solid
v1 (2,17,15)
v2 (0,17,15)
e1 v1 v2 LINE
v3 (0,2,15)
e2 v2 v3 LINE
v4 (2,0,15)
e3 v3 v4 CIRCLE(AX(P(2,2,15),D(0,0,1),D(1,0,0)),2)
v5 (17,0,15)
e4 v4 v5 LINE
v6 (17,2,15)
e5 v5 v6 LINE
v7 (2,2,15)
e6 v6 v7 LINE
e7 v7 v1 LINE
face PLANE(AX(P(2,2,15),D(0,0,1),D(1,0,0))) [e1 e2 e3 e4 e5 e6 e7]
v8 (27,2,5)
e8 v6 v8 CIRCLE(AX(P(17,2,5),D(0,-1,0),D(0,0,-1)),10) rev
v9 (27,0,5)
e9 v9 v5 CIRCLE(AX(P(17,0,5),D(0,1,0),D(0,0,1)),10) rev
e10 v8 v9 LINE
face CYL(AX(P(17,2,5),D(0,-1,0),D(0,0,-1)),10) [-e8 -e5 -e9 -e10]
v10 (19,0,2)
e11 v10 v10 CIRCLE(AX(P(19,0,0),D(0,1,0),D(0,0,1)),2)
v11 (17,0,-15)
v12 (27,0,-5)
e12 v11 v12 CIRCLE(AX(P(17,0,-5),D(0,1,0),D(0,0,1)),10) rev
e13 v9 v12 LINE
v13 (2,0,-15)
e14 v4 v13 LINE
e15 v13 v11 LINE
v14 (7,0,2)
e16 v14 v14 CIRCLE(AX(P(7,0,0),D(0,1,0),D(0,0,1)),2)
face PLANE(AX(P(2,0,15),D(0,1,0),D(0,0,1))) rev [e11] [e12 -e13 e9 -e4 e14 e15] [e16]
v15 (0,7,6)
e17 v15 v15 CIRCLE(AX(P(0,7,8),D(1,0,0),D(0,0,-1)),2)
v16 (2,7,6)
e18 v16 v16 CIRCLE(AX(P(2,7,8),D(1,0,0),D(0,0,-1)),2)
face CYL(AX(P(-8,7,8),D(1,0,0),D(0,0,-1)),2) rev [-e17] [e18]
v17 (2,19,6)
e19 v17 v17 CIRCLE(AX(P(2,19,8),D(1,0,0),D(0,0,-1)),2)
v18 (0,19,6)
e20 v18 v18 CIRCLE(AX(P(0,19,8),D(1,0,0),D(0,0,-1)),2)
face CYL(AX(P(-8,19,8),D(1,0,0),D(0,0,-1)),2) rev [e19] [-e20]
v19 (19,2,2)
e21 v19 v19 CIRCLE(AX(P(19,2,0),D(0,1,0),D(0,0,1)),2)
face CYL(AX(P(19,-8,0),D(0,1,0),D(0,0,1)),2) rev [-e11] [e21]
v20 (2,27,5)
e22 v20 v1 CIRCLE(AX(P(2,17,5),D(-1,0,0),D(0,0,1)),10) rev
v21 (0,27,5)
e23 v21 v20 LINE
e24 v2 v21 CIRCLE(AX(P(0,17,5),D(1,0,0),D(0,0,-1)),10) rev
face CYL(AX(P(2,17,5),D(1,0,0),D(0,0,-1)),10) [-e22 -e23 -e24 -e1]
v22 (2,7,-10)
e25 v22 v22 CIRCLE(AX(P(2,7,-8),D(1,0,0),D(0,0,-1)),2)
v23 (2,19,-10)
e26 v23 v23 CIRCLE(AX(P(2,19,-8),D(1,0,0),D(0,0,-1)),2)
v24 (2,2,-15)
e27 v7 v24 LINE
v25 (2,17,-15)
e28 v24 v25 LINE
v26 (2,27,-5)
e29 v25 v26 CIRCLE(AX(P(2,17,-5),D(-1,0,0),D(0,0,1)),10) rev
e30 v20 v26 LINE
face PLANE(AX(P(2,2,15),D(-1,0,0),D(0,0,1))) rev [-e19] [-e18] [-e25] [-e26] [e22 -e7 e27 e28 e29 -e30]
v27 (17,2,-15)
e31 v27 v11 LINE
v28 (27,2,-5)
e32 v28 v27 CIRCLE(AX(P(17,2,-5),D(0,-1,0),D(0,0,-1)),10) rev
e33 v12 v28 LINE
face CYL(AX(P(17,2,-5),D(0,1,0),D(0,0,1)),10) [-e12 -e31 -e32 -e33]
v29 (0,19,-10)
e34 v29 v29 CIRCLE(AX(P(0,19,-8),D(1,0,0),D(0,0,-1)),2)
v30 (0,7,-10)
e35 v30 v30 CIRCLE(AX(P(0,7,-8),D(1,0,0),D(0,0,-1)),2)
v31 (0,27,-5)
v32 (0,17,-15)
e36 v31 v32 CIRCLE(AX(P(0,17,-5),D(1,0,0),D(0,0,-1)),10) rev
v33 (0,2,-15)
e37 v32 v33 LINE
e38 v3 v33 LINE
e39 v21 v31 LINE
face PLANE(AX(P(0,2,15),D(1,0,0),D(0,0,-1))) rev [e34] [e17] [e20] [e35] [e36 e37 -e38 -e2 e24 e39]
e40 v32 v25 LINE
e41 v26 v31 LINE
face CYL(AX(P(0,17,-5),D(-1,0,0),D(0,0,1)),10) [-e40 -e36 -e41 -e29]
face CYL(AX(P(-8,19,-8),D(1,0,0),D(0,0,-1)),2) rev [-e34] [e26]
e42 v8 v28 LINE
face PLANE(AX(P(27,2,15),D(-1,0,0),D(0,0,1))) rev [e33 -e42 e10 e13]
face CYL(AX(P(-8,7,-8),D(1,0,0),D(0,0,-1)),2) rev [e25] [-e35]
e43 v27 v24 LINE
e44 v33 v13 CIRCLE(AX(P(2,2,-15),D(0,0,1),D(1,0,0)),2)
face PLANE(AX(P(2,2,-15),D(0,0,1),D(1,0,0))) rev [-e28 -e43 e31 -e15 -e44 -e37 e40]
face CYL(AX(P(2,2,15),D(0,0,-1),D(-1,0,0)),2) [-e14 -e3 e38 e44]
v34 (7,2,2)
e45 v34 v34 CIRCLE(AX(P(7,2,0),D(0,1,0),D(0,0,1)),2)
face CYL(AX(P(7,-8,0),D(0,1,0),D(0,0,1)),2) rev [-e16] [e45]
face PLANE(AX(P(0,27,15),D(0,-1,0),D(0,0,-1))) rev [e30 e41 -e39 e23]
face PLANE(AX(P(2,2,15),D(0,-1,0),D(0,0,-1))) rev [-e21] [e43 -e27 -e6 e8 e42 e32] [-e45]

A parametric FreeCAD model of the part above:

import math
import FreeCAD as App
import Part
import Sketcher
from FreeCAD import Vector
Q = App.Units.Quantity


def edges_at(feature, points):
    """Names of the edges that pass closest to the given points."""
    edges = feature.Shape.Edges
    near = lambda p: min(range(len(edges)), key=lambda i: edges[i].distToShape(Part.Vertex(*p))[0])
    return sorted({f"Edge{near(p) + 1}" for p in points})

doc = App.newDocument("Part")
body = doc.addObject("PartDesign::Body", "Body")

# Sketch on XY plane
sketch1 = body.newObject("Sketcher::SketchObject", "Sketch")
sketch1.AttachmentSupport = (doc.getObject("XY_Plane"), [""])
sketch1.MapMode = "FlatFace"
sketch1.addGeometry([
    Part.LineSegment(Vector(0, 27, 0), Vector(0, 2, 0)),  # 0
    Part.ArcOfCircle(Part.Circle(Vector(2, 2, 0), Vector(0, 0, 1), 2), math.radians(-180), math.radians(-90)),  # 1
    Part.LineSegment(Vector(2, 0, 0), Vector(27, 0, 0)),  # 2
    Part.LineSegment(Vector(27, 0, 0), Vector(27, 2, 0)),  # 3
    Part.LineSegment(Vector(27, 2, 0), Vector(2, 2, 0)),  # 4
    Part.LineSegment(Vector(2, 2, 0), Vector(2, 27, 0)),  # 5
    Part.LineSegment(Vector(2, 27, 0), Vector(0, 27, 0)),  # 6
], False)
sketch1.addConstraint([
    Sketcher.Constraint("Tangent", 0, 2, 1, 1),
    Sketcher.Constraint("Tangent", 1, 2, 2, 1),
    Sketcher.Constraint("Coincident", 2, 2, 3, 1),
    Sketcher.Constraint("Coincident", 3, 2, 4, 1),
    Sketcher.Constraint("Coincident", 4, 2, 5, 1),
    Sketcher.Constraint("Coincident", 5, 2, 6, 1),
    Sketcher.Constraint("Coincident", 6, 2, 0, 1),
    Sketcher.Constraint("Vertical", 0),
    Sketcher.Constraint("Horizontal", 2),
    Sketcher.Constraint("Vertical", 3),
    Sketcher.Constraint("Horizontal", 4),
    Sketcher.Constraint("Vertical", 5),
    Sketcher.Constraint("Horizontal", 6),
    Sketcher.Constraint("Coincident", 4, 2, 1, 3),
    Sketcher.Constraint("PointOnObject", 0, 2, -2),
    Sketcher.Constraint("PointOnObject", 1, 2, -1),
    Sketcher.Constraint("Equal", 4, 0),
    Sketcher.Constraint("Radius", 1, Q("2 mm")),
    Sketcher.Constraint("DistanceX", 2, 1, 2, 2, Q("25 mm")),
])
pad1 = body.newObject("PartDesign::Pad", "Pad")
pad1.Profile = sketch1
pad1.Length = 30
pad1.Midplane = True
doc.recompute()

fillet = body.newObject("PartDesign::Fillet", "Fillet")
fillet.Base = (pad1, edges_at(pad1, [
    (27, 1, 15),
    (1, 27, 15),
    (27, 1, -15),
    (1, 27, -15),
]))
fillet.Radius = 10

# Sketch on XZ plane
sketch2 = body.newObject("Sketcher::SketchObject", "Sketch001")
sketch2.AttachmentSupport = (doc.getObject("XZ_Plane"), [""])
sketch2.MapMode = "FlatFace"
sketch2.AttachmentOffset = App.Placement(Vector(0, 0, -2), App.Rotation())
sketch2.addGeometry([
    Part.Circle(Vector(7, 0, 0), Vector(0, 0, 1), 2),
    Part.Circle(Vector(19, 0, 0), Vector(0, 0, 1), 2),
], False)
sketch2.addConstraint([
    Sketcher.Constraint("Equal", 0, 1),
    Sketcher.Constraint("PointOnObject", 0, 3, -1),
    Sketcher.Constraint("PointOnObject", 1, 3, -1),
    Sketcher.Constraint("Diameter", 0, Q("4 mm")),
    Sketcher.Constraint("DistanceX", -1, 1, 0, 3, Q("7 mm")),
    Sketcher.Constraint("DistanceX", -1, 1, 1, 3, Q("19 mm")),
])
pocket1 = body.newObject("PartDesign::Pocket", "Pocket")
pocket1.Profile = sketch2
pocket1.Length = 10
pocket1.Reversed = True

# Sketch on YZ plane
sketch3 = body.newObject("Sketcher::SketchObject", "Sketch002")
sketch3.AttachmentSupport = (doc.getObject("YZ_Plane"), [""])
sketch3.MapMode = "FlatFace"
sketch3.AttachmentOffset = App.Placement(Vector(0, 0, 2), App.Rotation())
sketch3.addGeometry([
    Part.Circle(Vector(19, 8, 0), Vector(0, 0, 1), 2),
    Part.Circle(Vector(19, -8, 0), Vector(0, 0, 1), 2),
    Part.Circle(Vector(7, -8, 0), Vector(0, 0, 1), 2),
    Part.Circle(Vector(7, 8, 0), Vector(0, 0, 1), 2),
], False)
sketch3.addConstraint([
    Sketcher.Constraint("Equal", 0, 1),
    Sketcher.Constraint("Equal", 1, 2),
    Sketcher.Constraint("Equal", 2, 3),
    Sketcher.Constraint("Symmetric", 0, 3, 1, 3, -1),
    Sketcher.Constraint("Symmetric", 2, 3, 3, 3, -1),
    Sketcher.Constraint("Horizontal", 1, 3, 2, 3),
    Sketcher.Constraint("Diameter", 0, Q("4 mm")),
    Sketcher.Constraint("DistanceX", -1, 1, 0, 3, Q("19 mm")),
    Sketcher.Constraint("DistanceY", -1, 1, 0, 3, Q("8 mm")),
    Sketcher.Constraint("DistanceX", -1, 1, 2, 3, Q("7 mm")),
])
pocket2 = body.newObject("PartDesign::Pocket", "Pocket001")
pocket2.Profile = sketch3
pocket2.Length = 10

doc.recompute()
